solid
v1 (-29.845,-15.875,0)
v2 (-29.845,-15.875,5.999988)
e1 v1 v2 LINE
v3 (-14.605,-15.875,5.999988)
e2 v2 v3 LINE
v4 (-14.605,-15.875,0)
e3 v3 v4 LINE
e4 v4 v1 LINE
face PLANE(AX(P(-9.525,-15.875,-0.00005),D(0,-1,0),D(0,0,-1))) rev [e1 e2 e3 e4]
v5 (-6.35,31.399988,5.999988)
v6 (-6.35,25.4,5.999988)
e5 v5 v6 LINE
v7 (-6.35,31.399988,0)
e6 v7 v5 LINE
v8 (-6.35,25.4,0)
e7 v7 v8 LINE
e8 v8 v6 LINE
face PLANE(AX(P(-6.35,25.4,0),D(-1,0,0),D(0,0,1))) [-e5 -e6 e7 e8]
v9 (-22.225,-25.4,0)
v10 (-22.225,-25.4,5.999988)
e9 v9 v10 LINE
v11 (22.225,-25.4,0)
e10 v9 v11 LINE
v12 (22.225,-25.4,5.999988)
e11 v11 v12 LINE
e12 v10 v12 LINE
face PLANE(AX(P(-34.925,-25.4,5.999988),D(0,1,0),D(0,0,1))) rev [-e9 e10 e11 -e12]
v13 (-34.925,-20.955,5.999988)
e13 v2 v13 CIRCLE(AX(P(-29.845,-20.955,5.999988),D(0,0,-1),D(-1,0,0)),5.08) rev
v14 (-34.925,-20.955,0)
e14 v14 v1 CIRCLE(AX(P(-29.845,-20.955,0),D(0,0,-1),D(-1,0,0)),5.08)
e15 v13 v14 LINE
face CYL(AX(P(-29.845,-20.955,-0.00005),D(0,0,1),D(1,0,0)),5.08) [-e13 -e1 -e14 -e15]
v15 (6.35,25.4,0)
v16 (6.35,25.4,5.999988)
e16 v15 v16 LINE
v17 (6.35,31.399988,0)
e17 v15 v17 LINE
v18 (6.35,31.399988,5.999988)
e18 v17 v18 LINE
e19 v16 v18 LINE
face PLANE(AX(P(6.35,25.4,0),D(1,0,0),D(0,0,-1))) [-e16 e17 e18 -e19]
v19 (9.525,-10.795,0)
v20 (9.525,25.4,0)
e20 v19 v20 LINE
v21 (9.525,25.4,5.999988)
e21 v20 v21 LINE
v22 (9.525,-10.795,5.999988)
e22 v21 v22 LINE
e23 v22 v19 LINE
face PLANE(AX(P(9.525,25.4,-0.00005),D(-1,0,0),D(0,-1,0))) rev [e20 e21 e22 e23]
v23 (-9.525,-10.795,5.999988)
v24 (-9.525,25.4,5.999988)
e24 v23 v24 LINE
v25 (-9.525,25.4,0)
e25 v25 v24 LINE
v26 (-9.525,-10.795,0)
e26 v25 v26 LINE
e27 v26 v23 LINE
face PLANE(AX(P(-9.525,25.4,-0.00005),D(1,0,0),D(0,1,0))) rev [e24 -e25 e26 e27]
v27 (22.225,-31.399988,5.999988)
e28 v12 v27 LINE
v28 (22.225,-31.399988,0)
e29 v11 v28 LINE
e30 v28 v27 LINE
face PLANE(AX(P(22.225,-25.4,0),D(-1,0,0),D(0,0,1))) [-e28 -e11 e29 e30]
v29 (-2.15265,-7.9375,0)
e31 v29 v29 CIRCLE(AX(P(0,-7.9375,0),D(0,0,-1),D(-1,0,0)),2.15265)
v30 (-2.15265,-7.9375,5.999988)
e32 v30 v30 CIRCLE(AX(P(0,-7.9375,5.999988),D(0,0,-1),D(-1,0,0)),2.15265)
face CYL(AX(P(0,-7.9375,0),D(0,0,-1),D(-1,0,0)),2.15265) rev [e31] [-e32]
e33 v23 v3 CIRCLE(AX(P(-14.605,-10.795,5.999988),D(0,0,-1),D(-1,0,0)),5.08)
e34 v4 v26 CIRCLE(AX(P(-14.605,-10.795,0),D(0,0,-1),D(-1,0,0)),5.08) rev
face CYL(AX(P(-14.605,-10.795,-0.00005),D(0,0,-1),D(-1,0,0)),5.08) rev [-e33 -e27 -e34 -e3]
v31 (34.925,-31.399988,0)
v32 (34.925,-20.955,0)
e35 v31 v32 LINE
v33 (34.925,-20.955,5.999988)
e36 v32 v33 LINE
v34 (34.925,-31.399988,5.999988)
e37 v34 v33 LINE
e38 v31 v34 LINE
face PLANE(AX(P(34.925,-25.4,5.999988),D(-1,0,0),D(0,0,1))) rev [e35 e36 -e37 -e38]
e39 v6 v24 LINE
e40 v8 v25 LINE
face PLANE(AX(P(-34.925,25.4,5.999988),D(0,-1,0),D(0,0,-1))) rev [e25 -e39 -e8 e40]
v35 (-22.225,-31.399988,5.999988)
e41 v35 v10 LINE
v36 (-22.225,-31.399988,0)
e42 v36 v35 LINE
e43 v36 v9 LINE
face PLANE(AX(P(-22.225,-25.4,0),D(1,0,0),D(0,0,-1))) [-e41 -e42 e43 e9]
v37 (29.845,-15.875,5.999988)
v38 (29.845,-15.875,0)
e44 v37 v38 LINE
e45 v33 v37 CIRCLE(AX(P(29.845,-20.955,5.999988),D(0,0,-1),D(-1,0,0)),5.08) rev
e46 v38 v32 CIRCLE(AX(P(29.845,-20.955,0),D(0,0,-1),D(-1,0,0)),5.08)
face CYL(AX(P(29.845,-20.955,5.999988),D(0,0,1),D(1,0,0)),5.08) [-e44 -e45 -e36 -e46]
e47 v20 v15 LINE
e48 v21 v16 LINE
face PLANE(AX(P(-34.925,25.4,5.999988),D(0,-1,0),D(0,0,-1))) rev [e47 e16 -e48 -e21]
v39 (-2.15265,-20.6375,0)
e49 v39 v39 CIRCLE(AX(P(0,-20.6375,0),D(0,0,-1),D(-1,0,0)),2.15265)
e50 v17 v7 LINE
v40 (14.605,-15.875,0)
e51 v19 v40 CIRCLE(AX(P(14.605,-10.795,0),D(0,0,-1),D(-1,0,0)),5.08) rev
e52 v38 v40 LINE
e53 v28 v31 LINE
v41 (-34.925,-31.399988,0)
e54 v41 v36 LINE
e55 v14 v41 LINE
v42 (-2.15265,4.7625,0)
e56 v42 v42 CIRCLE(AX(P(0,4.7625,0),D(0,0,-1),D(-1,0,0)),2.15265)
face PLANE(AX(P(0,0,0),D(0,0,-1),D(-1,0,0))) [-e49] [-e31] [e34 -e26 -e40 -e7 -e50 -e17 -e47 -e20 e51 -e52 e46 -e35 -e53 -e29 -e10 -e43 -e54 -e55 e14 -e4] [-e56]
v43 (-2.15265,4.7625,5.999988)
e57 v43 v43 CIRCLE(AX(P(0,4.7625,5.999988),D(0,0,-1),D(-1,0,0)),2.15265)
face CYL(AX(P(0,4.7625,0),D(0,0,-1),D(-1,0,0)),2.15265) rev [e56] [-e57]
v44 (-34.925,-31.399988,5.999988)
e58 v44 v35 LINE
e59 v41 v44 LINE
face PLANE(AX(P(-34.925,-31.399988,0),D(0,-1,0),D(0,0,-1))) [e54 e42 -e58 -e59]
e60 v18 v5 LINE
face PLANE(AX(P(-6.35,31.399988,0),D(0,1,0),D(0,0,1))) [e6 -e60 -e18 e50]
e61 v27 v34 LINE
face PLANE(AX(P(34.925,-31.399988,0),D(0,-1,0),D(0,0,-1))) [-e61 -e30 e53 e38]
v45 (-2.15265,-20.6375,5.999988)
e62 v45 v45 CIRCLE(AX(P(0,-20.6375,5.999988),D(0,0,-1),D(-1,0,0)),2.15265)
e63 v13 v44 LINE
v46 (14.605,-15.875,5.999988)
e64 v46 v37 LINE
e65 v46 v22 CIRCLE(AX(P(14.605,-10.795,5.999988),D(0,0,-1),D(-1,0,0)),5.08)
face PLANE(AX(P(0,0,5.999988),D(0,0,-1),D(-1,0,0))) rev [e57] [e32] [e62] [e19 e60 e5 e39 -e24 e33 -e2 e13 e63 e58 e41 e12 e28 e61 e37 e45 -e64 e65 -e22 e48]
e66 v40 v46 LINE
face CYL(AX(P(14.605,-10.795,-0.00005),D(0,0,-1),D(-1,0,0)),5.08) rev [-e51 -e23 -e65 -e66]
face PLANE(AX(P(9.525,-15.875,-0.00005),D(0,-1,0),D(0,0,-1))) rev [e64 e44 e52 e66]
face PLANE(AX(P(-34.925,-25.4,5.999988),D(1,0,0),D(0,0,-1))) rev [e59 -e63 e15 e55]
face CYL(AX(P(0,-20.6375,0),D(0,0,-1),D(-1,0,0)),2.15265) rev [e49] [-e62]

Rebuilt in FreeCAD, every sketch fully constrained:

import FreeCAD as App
import Part
import Sketcher
Q = App.Units.Quantity


def edges_at(feature, points):
    """Names of the edges that pass closest to the given points."""
    edges = feature.Shape.Edges
    near = lambda p: min(range(len(edges)), key=lambda i: edges[i].distToShape(Part.Vertex(*p))[0])
    return sorted({f"Edge{near(p) + 1}" for p in points})

doc = App.newDocument("Part")
body = doc.addObject("PartDesign::Body", "Body")

# Sketch on XY plane
sketch1 = body.newObject("Sketcher::SketchObject", "Sketch")
sketch1.AttachmentSupport = (doc.getObject("XY_Plane"), [""])
sketch1.MapMode = "FlatFace"
sketch1.addGeometry(Part.LineSegment(App.Vector(-35, 25, 0), App.Vector(-35, -25, 0)), False)
sketch1.addGeometry(Part.LineSegment(App.Vector(-35, -25, 0), App.Vector(35, -25, 0)), False)
sketch1.addGeometry(Part.LineSegment(App.Vector(35, -25, 0), App.Vector(35, 25, 0)), False)
sketch1.addGeometry(Part.LineSegment(App.Vector(35, 25, 0), App.Vector(-35, 25, 0)), False)
sketch1.addConstraint(Sketcher.Constraint("Coincident", 0, 2, 1, 1))
sketch1.addConstraint(Sketcher.Constraint("Coincident", 1, 2, 2, 1))
sketch1.addConstraint(Sketcher.Constraint("Coincident", 2, 2, 3, 1))
sketch1.addConstraint(Sketcher.Constraint("Coincident", 3, 2, 0, 1))
sketch1.addConstraint(Sketcher.Constraint("Vertical", 0))
sketch1.addConstraint(Sketcher.Constraint("Horizontal", 1))
sketch1.addConstraint(Sketcher.Constraint("Vertical", 2))
sketch1.addConstraint(Sketcher.Constraint("Horizontal", 3))
sketch1.addConstraint(Sketcher.Constraint("Symmetric", 0, 2, 2, 2, -1, 1))
sketch1.addConstraint(Sketcher.Constraint("DistanceY", 0, 2, 0, 1, Q("2 in")))
sketch1.addConstraint(Sketcher.Constraint("DistanceX", 1, 1, 1, 2, Q("2.75 in")))
pad1 = body.newObject("PartDesign::Pad", "Pad")
pad1.Profile = sketch1
pad1.Length = 5.999988

# Sketch on XY plane
sketch2 = body.newObject("Sketcher::SketchObject", "Sketch001")
sketch2.AttachmentSupport = (doc.getObject("XY_Plane"), [""])
sketch2.MapMode = "FlatFace"
sketch2.AttachmentOffset = App.Placement(App.Vector(0, 0, 5.999988), App.Rotation())
sketch2.addGeometry(Part.LineSegment(App.Vector(-6, 31, 0), App.Vector(-6, 25, 0)), False)
sketch2.addGeometry(Part.LineSegment(App.Vector(-6, 25, 0), App.Vector(6, 25, 0)), False)
sketch2.addGeometry(Part.LineSegment(App.Vector(6, 25, 0), App.Vector(6, 31, 0)), False)
sketch2.addGeometry(Part.LineSegment(App.Vector(6, 31, 0), App.Vector(-6, 31, 0)), False)
sketch2.addGeometry(Part.LineSegment(App.Vector(22, -25, 0), App.Vector(22, -31, 0)), False)
sketch2.addGeometry(Part.LineSegment(App.Vector(22, -31, 0), App.Vector(35, -31, 0)), False)
sketch2.addGeometry(Part.LineSegment(App.Vector(35, -31, 0), App.Vector(35, -25, 0)), False)
sketch2.addGeometry(Part.LineSegment(App.Vector(35, -25, 0), App.Vector(22, -25, 0)), False)
sketch2.addGeometry(Part.LineSegment(App.Vector(-35, -25, 0), App.Vector(-35, -31, 0)), False)
sketch2.addGeometry(Part.LineSegment(App.Vector(-35, -31, 0), App.Vector(-22, -31, 0)), False)
sketch2.addGeometry(Part.LineSegment(App.Vector(-22, -31, 0), App.Vector(-22, -25, 0)), False)
sketch2.addGeometry(Part.LineSegment(App.Vector(-22, -25, 0), App.Vector(-35, -25, 0)), False)
sketch2.addConstraint(Sketcher.Constraint("Coincident", 0, 2, 1, 1))
sketch2.addConstraint(Sketcher.Constraint("Coincident", 1, 2, 2, 1))
sketch2.addConstraint(Sketcher.Constraint("Coincident", 2, 2, 3, 1))
sketch2.addConstraint(Sketcher.Constraint("Coincident", 3, 2, 0, 1))
sketch2.addConstraint(Sketcher.Constraint("Coincident", 4, 2, 5, 1))
sketch2.addConstraint(Sketcher.Constraint("Coincident", 5, 2, 6, 1))
sketch2.addConstraint(Sketcher.Constraint("Coincident", 6, 2, 7, 1))
sketch2.addConstraint(Sketcher.Constraint("Coincident", 7, 2, 4, 1))
sketch2.addConstraint(Sketcher.Constraint("Coincident", 8, 2, 9, 1))
sketch2.addConstraint(Sketcher.Constraint("Coincident", 9, 2, 10, 1))
sketch2.addConstraint(Sketcher.Constraint("Coincident", 10, 2, 11, 1))
sketch2.addConstraint(Sketcher.Constraint("Coincident", 11, 2, 8, 1))
sketch2.addConstraint(Sketcher.Constraint("Vertical", 0))
sketch2.addConstraint(Sketcher.Constraint("Horizontal", 1))
sketch2.addConstraint(Sketcher.Constraint("Vertical", 2))
sketch2.addConstraint(Sketcher.Constraint("Horizontal", 3))
sketch2.addConstraint(Sketcher.Constraint("Vertical", 4))
sketch2.addConstraint(Sketcher.Constraint("Horizontal", 5))
sketch2.addConstraint(Sketcher.Constraint("Vertical", 6))
sketch2.addConstraint(Sketcher.Constraint("Horizontal", 7))
sketch2.addConstraint(Sketcher.Constraint("Vertical", 8))
sketch2.addConstraint(Sketcher.Constraint("Horizontal", 9))
sketch2.addConstraint(Sketcher.Constraint("Vertical", 10))
sketch2.addConstraint(Sketcher.Constraint("Horizontal", 11))
sketch2.addConstraint(Sketcher.Constraint("Symmetric", 5, 2, 8, 2, -2))
sketch2.addConstraint(Sketcher.Constraint("Symmetric", 7, 2, 10, 2, -2))
sketch2.addConstraint(Sketcher.Constraint("Equal", 3, 5))
sketch2.addConstraint(Sketcher.Constraint("Equal", 2, 4))
sketch2.addConstraint(Sketcher.Constraint("DistanceX", 1, 1, 1, 2, Q("0.5 in")))
sketch2.addConstraint(Sketcher.Constraint("DistanceY", -1, 1, 0, 2, Q("1 in")))
sketch2.addConstraint(Sketcher.Constraint("DistanceY", 6, 2, -1, 1, Q("1 in")))
sketch2.addConstraint(Sketcher.Constraint("DistanceX", 0, 2, -1, 1, Q("0.25 in")))
sketch2.addConstraint(Sketcher.Constraint("DistanceX", 8, 2, 4, 2, Q("2.25 in")))
sketch2.addConstraint(Sketcher.Constraint("DistanceY", 0, 2, 0, 1, Q("5.999988 mm")))
pad2 = body.newObject("PartDesign::Pad", "Pad001")
pad2.Profile = sketch2
pad2.Length = 5.999988
pad2.Reversed = True

# Sketch on XY plane
sketch3 = body.newObject("Sketcher::SketchObject", "Sketch002")
sketch3.AttachmentSupport = (doc.getObject("XY_Plane"), [""])
sketch3.MapMode = "FlatFace"
sketch3.AttachmentOffset = App.Placement(App.Vector(0, 0, 5.999988), App.Rotation())
sketch3.addGeometry(Part.LineSegment(App.Vector(-35, 25, 0), App.Vector(-35, -16, 0)), False)
sketch3.addGeometry(Part.LineSegment(App.Vector(-35, -16, 0), App.Vector(-10, -16, 0)), False)
sketch3.addGeometry(Part.LineSegment(App.Vector(-10, -16, 0), App.Vector(-10, 25, 0)), False)
sketch3.addGeometry(Part.LineSegment(App.Vector(-10, 25, 0), App.Vector(-35, 25, 0)), False)
sketch3.addConstraint(Sketcher.Constraint("Coincident", 0, 2, 1, 1))
sketch3.addConstraint(Sketcher.Constraint("Coincident", 1, 2, 2, 1))
sketch3.addConstraint(Sketcher.Constraint("Coincident", 2, 2, 3, 1))
sketch3.addConstraint(Sketcher.Constraint("Coincident", 3, 2, 0, 1))
sketch3.addConstraint(Sketcher.Constraint("Vertical", 0))
sketch3.addConstraint(Sketcher.Constraint("Horizontal", 1))
sketch3.addConstraint(Sketcher.Constraint("Vertical", 2))
sketch3.addConstraint(Sketcher.Constraint("Horizontal", 3))
sketch3.addConstraint(Sketcher.Constraint("DistanceX", 1, 1, 1, 2, Q("1 in")))
sketch3.addConstraint(Sketcher.Constraint("DistanceY", -1, 1, 2, 2, Q("1 in")))
sketch3.addConstraint(Sketcher.Constraint("DistanceY", 0, 2, 0, 1, Q("1.625 in")))
sketch3.addConstraint(Sketcher.Constraint("DistanceX", 0, 2, -1, 1, Q("1.375 in")))
pocket1 = body.newObject("PartDesign::Pocket", "Pocket")
pocket1.Profile = sketch3
pocket1.Type = "ThroughAll"

# Sketch on XY plane
sketch4 = body.newObject("Sketcher::SketchObject", "Sketch003")
sketch4.AttachmentSupport = (doc.getObject("XY_Plane"), [""])
sketch4.MapMode = "FlatFace"
sketch4.addGeometry(Part.Circle(App.Vector(0, -20.6, 0), App.Vector(0, 0, 1), 2.2), False)
sketch4.addGeometry(Part.Circle(App.Vector(0, -7.9, 0), App.Vector(0, 0, 1), 2.2), False)
sketch4.addGeometry(Part.Circle(App.Vector(0, 4.8, 0), App.Vector(0, 0, 1), 2.2), False)
sketch4.addConstraint(Sketcher.Constraint("Equal", 0, 1))
sketch4.addConstraint(Sketcher.Constraint("Equal", 1, 2))
sketch4.addConstraint(Sketcher.Constraint("PointOnObject", 0, 3, -2))
sketch4.addConstraint(Sketcher.Constraint("PointOnObject", 1, 3, -2))
sketch4.addConstraint(Sketcher.Constraint("PointOnObject", 2, 3, -2))
sketch4.addConstraint(Sketcher.Constraint("DistanceY", 0, 3, 2, 3, Q("1 in")))
sketch4.addConstraint(Sketcher.Constraint("Diameter", 0, Q("0.1695 in")))
sketch4.addConstraint(Sketcher.Constraint("DistanceY", 0, 3, 1, 3, Q("0.5 in")))
sketch4.addConstraint(Sketcher.Constraint("DistanceY", 0, 3, -1, 1, Q("0.8125 in")))
doc.recompute()
hole = body.newObject("PartDesign::Hole", "Hole")
hole.Profile = sketch4
hole.ThreadType = "None"
hole.Diameter = Q("0.1695 in")
hole.DepthType = "ThroughAll"
hole.Reversed = True

# Sketch on XY plane
sketch5 = body.newObject("Sketcher::SketchObject", "Sketch004")
sketch5.AttachmentSupport = (doc.getObject("XY_Plane"), [""])
sketch5.MapMode = "FlatFace"
sketch5.AttachmentOffset = App.Placement(App.Vector(0, 0, 5.999988), App.Rotation())
sketch5.addGeometry(Part.LineSegment(App.Vector(10, 25, 0), App.Vector(10, -16, 0)), False)
sketch5.addGeometry(Part.LineSegment(App.Vector(10, -16, 0), App.Vector(35, -16, 0)), False)
sketch5.addGeometry(Part.LineSegment(App.Vector(35, -16, 0), App.Vector(35, 25, 0)), False)
sketch5.addGeometry(Part.LineSegment(App.Vector(35, 25, 0), App.Vector(10, 25, 0)), False)
sketch5.addConstraint(Sketcher.Constraint("Coincident", 0, 2, 1, 1))
sketch5.addConstraint(Sketcher.Constraint("Coincident", 1, 2, 2, 1))
sketch5.addConstraint(Sketcher.Constraint("Coincident", 2, 2, 3, 1))
sketch5.addConstraint(Sketcher.Constraint("Coincident", 3, 2, 0, 1))
sketch5.addConstraint(Sketcher.Constraint("Vertical", 0))
sketch5.addConstraint(Sketcher.Constraint("Horizontal", 1))
sketch5.addConstraint(Sketcher.Constraint("Vertical", 2))
sketch5.addConstraint(Sketcher.Constraint("Horizontal", 3))
sketch5.addConstraint(Sketcher.Constraint("DistanceX", 1, 1, 1, 2, Q("1 in")))
sketch5.addConstraint(Sketcher.Constraint("DistanceY", -1, 1, 2, 2, Q("1 in")))
sketch5.addConstraint(Sketcher.Constraint("DistanceY", 0, 2, 0, 1, Q("1.625 in")))
sketch5.addConstraint(Sketcher.Constraint("DistanceX", -1, 1, 0, 2, Q("0.375 in")))
pocket2 = body.newObject("PartDesign::Pocket", "Pocket001")
pocket2.Profile = sketch5
pocket2.Type = "ThroughAll"
doc.recompute()

fillet = body.newObject("PartDesign::Fillet", "Fillet")
fillet.Base = (pocket2, edges_at(pocket2, [
    (34.925, -15.875, 3),
    (9.525, -15.875, 3),
    (-9.525, -15.875, 3),
    (-34.925, -15.875, 3),
]))
fillet.Radius = Q("0.2 in")

doc.recompute()
